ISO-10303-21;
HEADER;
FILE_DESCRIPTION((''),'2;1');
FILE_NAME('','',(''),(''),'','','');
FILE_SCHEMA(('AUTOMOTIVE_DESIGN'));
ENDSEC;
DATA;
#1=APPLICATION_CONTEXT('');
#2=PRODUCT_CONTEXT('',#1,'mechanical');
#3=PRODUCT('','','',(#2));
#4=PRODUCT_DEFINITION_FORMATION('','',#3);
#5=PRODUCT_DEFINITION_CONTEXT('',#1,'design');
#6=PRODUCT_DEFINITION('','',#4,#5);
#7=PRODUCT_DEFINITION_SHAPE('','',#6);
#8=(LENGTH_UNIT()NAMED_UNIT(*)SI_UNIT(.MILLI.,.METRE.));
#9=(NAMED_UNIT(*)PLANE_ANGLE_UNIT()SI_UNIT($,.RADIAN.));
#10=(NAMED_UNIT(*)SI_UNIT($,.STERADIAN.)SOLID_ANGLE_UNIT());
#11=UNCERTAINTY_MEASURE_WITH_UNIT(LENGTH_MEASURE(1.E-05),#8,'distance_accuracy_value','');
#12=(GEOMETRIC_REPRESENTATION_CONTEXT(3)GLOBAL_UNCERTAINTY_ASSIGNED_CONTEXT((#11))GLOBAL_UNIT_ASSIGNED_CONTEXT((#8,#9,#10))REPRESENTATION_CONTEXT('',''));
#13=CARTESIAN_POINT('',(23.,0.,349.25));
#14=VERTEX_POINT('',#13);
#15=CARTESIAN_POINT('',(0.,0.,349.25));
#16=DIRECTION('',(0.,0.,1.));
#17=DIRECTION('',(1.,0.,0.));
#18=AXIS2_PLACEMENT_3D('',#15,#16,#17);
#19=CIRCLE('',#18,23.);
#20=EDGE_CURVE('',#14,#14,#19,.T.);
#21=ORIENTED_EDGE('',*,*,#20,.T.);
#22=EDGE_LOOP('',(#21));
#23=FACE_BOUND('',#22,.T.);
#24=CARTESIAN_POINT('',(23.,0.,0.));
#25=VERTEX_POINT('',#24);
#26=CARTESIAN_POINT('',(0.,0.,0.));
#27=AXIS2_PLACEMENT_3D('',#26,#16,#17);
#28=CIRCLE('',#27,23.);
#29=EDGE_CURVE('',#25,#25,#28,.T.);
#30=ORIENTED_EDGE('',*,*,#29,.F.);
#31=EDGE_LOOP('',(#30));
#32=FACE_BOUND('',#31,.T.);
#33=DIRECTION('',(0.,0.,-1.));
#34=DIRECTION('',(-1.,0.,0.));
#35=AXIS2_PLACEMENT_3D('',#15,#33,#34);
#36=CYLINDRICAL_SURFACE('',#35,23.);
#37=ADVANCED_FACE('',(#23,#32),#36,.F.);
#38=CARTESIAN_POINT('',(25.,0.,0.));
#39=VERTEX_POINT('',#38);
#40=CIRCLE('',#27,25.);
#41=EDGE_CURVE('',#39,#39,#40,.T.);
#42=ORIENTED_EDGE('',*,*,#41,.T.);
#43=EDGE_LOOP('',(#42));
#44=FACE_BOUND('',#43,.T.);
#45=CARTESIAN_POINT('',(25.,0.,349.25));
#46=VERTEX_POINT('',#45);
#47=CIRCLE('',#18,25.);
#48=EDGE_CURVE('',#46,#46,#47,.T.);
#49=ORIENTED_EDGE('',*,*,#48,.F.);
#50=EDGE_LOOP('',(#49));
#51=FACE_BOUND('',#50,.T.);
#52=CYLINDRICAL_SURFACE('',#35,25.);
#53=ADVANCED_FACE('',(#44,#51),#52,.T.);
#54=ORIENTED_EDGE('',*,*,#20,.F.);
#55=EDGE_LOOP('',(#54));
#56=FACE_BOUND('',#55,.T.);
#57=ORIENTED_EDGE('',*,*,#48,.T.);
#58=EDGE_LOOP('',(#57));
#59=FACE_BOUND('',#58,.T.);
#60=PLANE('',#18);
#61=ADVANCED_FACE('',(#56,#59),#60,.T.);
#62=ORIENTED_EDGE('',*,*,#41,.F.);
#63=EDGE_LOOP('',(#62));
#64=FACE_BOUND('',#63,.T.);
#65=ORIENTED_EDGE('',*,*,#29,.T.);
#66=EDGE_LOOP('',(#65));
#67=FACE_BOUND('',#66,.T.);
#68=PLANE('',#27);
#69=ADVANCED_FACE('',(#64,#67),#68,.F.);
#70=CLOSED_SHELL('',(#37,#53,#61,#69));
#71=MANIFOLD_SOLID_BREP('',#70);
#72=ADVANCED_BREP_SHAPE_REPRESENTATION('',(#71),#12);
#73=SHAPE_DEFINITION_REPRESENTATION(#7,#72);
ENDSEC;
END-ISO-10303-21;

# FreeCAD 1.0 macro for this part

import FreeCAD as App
import Part
import Sketcher
from FreeCAD import Vector

doc = App.newDocument("Part")
body = doc.addObject("PartDesign::Body", "Body")

# Sketch on XY plane
sketch1 = doc.addObject("Sketcher::SketchObject", "Sketch")
body.addObject(sketch1)
sketch1.AttachmentSupport = (doc.XY_Plane, [""])
sketch1.MapMode = "FlatFace"
sketch1.addGeometry(Part.Circle(Vector(0, 0, 0), Vector(0, 0, 1), 25), False)
sketch1.addGeometry(Part.Circle(Vector(0, 0, 0), Vector(0, 0, 1), 23), False)
sketch1.addConstraint(Sketcher.Constraint("Coincident", 0, 3, -1, 1))
sketch1.addConstraint(Sketcher.Constraint("Coincident", 1, 3, -1, 1))
sketch1.addConstraint(Sketcher.Constraint("Diameter", 0, 50.0))
sketch1.addConstraint(Sketcher.Constraint("Diameter", 1, 46.0))
pad1 = doc.addObject("PartDesign::Pad", "Pad")
body.addObject(pad1)
pad1.Profile = sketch1
pad1.Length = 349.25

doc.recompute()
